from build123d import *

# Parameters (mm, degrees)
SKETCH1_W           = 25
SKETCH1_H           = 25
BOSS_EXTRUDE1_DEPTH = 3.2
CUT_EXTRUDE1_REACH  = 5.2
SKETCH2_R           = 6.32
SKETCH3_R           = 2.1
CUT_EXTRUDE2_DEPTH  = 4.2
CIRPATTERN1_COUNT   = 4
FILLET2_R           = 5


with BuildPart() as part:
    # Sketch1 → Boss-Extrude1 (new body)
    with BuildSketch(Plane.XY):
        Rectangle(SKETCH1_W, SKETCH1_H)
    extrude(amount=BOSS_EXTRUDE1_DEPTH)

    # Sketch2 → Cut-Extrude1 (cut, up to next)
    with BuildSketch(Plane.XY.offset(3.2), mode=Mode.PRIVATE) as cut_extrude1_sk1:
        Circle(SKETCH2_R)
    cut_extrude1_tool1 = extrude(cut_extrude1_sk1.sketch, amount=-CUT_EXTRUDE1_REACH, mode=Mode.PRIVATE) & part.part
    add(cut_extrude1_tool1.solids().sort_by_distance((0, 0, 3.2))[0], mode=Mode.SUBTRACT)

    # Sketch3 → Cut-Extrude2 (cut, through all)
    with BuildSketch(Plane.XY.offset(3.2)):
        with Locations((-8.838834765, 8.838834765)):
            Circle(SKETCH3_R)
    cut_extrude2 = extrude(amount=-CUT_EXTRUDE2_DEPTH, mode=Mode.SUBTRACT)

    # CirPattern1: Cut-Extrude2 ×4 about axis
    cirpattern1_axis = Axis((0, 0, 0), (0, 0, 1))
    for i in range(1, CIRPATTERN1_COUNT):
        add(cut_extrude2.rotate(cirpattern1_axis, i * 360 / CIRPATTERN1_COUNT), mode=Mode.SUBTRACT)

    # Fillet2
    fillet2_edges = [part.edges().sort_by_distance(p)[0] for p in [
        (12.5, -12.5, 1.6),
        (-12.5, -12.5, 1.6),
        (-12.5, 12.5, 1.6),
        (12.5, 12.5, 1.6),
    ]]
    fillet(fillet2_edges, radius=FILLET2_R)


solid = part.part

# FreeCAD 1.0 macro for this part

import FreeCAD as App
import Part
import Sketcher
from FreeCAD import Vector


def edges_at(feature, points):
    """Names of the edges that pass closest to the given points."""
    edges = feature.Shape.Edges
    near = lambda p: min(range(len(edges)), key=lambda i: edges[i].distToShape(Part.Vertex(*p))[0])
    return sorted({f"Edge{near(p) + 1}" for p in points})

doc = App.newDocument("Part")
body = doc.addObject("PartDesign::Body", "Body")

# Sketch on XY plane
sketch1 = body.newObject("Sketcher::SketchObject", "Sketch")
sketch1.AttachmentSupport = (doc.getObject("XY_Plane"), [""])
sketch1.MapMode = "FlatFace"
sketch1.addGeometry(Part.LineSegment(Vector(-12.5, 12.5, 0), Vector(-12.5, -12.5, 0)), False)
sketch1.addGeometry(Part.LineSegment(Vector(-12.5, -12.5, 0), Vector(12.5, -12.5, 0)), False)
sketch1.addGeometry(Part.LineSegment(Vector(12.5, -12.5, 0), Vector(12.5, 12.5, 0)), False)
sketch1.addGeometry(Part.LineSegment(Vector(12.5, 12.5, 0), Vector(-12.5, 12.5, 0)), False)
sketch1.addConstraint(Sketcher.Constraint("Coincident", 0, 2, 1, 1))
sketch1.addConstraint(Sketcher.Constraint("Coincident", 1, 2, 2, 1))
sketch1.addConstraint(Sketcher.Constraint("Coincident", 2, 2, 3, 1))
sketch1.addConstraint(Sketcher.Constraint("Coincident", 3, 2, 0, 1))
sketch1.addConstraint(Sketcher.Constraint("Vertical", 0))
sketch1.addConstraint(Sketcher.Constraint("Horizontal", 1))
sketch1.addConstraint(Sketcher.Constraint("Vertical", 2))
sketch1.addConstraint(Sketcher.Constraint("Horizontal", 3))
sketch1.addConstraint(Sketcher.Constraint("Symmetric", 0, 2, 2, 2, -1, 1))
sketch1.addConstraint(Sketcher.Constraint("Equal", 3, 0))
sketch1.addConstraint(Sketcher.Constraint("DistanceX", 1, 1, 1, 2, 25.0))
pad1 = body.newObject("PartDesign::Pad", "Pad")
pad1.Profile = sketch1
pad1.Length = 3.2

# Sketch on XY plane
sketch2 = body.newObject("Sketcher::SketchObject", "Sketch001")
sketch2.AttachmentSupport = (doc.getObject("XY_Plane"), [""])
sketch2.MapMode = "FlatFace"
sketch2.AttachmentOffset = App.Placement(Vector(0, 0, 3.2), App.Rotation())
sketch2.addGeometry(Part.Circle(Vector(0, 0, 0), Vector(0, 0, 1), 6.32), False)
sketch2.addConstraint(Sketcher.Constraint("Coincident", 0, 3, -1, 1))
sketch2.addConstraint(Sketcher.Constraint("Diameter", 0, 12.64))
pocket1 = body.newObject("PartDesign::Pocket", "Pocket")
pocket1.Profile = sketch2
pocket1.Type = "UpToFirst"

# Sketch on XY plane
sketch3 = body.newObject("Sketcher::SketchObject", "Sketch002")
sketch3.AttachmentSupport = (doc.getObject("XY_Plane"), [""])
sketch3.MapMode = "FlatFace"
sketch3.AttachmentOffset = App.Placement(Vector(0, 0, 3.2), App.Rotation())
sketch3.addGeometry(Part.Circle(Vector(-8.838835, 8.838835, 0), Vector(0, 0, 1), 2.1), False)
sketch3.addConstraint(Sketcher.Constraint("Diameter", 0, 4.2))
sketch3.addConstraint(Sketcher.Constraint("DistanceX", 0, 3, -1, 1, 8.838835))
sketch3.addConstraint(Sketcher.Constraint("DistanceY", -1, 1, 0, 3, 8.838835))
pocket2 = body.newObject("PartDesign::Pocket", "Pocket001")
pocket2.Profile = sketch3
pocket2.Type = "ThroughAll"
doc.recompute()

polarpattern = body.newObject("PartDesign::PolarPattern", "PolarPattern")
polarpattern.Originals = [pocket2]
polarpattern.Axis = (doc.getObject("Z_Axis"), [""])
polarpattern.Angle = 360
polarpattern.Occurrences = 4
body.Tip = polarpattern
doc.recompute()

fillet = body.newObject("PartDesign::Fillet", "Fillet")
fillet.Base = (polarpattern, edges_at(polarpattern, [
    (12.5, -12.5, 1.6),
    (-12.5, -12.5, 1.6),
    (-12.5, 12.5, 1.6),
    (12.5, 12.5, 1.6),
]))
fillet.Radius = 5

doc.recompute()
